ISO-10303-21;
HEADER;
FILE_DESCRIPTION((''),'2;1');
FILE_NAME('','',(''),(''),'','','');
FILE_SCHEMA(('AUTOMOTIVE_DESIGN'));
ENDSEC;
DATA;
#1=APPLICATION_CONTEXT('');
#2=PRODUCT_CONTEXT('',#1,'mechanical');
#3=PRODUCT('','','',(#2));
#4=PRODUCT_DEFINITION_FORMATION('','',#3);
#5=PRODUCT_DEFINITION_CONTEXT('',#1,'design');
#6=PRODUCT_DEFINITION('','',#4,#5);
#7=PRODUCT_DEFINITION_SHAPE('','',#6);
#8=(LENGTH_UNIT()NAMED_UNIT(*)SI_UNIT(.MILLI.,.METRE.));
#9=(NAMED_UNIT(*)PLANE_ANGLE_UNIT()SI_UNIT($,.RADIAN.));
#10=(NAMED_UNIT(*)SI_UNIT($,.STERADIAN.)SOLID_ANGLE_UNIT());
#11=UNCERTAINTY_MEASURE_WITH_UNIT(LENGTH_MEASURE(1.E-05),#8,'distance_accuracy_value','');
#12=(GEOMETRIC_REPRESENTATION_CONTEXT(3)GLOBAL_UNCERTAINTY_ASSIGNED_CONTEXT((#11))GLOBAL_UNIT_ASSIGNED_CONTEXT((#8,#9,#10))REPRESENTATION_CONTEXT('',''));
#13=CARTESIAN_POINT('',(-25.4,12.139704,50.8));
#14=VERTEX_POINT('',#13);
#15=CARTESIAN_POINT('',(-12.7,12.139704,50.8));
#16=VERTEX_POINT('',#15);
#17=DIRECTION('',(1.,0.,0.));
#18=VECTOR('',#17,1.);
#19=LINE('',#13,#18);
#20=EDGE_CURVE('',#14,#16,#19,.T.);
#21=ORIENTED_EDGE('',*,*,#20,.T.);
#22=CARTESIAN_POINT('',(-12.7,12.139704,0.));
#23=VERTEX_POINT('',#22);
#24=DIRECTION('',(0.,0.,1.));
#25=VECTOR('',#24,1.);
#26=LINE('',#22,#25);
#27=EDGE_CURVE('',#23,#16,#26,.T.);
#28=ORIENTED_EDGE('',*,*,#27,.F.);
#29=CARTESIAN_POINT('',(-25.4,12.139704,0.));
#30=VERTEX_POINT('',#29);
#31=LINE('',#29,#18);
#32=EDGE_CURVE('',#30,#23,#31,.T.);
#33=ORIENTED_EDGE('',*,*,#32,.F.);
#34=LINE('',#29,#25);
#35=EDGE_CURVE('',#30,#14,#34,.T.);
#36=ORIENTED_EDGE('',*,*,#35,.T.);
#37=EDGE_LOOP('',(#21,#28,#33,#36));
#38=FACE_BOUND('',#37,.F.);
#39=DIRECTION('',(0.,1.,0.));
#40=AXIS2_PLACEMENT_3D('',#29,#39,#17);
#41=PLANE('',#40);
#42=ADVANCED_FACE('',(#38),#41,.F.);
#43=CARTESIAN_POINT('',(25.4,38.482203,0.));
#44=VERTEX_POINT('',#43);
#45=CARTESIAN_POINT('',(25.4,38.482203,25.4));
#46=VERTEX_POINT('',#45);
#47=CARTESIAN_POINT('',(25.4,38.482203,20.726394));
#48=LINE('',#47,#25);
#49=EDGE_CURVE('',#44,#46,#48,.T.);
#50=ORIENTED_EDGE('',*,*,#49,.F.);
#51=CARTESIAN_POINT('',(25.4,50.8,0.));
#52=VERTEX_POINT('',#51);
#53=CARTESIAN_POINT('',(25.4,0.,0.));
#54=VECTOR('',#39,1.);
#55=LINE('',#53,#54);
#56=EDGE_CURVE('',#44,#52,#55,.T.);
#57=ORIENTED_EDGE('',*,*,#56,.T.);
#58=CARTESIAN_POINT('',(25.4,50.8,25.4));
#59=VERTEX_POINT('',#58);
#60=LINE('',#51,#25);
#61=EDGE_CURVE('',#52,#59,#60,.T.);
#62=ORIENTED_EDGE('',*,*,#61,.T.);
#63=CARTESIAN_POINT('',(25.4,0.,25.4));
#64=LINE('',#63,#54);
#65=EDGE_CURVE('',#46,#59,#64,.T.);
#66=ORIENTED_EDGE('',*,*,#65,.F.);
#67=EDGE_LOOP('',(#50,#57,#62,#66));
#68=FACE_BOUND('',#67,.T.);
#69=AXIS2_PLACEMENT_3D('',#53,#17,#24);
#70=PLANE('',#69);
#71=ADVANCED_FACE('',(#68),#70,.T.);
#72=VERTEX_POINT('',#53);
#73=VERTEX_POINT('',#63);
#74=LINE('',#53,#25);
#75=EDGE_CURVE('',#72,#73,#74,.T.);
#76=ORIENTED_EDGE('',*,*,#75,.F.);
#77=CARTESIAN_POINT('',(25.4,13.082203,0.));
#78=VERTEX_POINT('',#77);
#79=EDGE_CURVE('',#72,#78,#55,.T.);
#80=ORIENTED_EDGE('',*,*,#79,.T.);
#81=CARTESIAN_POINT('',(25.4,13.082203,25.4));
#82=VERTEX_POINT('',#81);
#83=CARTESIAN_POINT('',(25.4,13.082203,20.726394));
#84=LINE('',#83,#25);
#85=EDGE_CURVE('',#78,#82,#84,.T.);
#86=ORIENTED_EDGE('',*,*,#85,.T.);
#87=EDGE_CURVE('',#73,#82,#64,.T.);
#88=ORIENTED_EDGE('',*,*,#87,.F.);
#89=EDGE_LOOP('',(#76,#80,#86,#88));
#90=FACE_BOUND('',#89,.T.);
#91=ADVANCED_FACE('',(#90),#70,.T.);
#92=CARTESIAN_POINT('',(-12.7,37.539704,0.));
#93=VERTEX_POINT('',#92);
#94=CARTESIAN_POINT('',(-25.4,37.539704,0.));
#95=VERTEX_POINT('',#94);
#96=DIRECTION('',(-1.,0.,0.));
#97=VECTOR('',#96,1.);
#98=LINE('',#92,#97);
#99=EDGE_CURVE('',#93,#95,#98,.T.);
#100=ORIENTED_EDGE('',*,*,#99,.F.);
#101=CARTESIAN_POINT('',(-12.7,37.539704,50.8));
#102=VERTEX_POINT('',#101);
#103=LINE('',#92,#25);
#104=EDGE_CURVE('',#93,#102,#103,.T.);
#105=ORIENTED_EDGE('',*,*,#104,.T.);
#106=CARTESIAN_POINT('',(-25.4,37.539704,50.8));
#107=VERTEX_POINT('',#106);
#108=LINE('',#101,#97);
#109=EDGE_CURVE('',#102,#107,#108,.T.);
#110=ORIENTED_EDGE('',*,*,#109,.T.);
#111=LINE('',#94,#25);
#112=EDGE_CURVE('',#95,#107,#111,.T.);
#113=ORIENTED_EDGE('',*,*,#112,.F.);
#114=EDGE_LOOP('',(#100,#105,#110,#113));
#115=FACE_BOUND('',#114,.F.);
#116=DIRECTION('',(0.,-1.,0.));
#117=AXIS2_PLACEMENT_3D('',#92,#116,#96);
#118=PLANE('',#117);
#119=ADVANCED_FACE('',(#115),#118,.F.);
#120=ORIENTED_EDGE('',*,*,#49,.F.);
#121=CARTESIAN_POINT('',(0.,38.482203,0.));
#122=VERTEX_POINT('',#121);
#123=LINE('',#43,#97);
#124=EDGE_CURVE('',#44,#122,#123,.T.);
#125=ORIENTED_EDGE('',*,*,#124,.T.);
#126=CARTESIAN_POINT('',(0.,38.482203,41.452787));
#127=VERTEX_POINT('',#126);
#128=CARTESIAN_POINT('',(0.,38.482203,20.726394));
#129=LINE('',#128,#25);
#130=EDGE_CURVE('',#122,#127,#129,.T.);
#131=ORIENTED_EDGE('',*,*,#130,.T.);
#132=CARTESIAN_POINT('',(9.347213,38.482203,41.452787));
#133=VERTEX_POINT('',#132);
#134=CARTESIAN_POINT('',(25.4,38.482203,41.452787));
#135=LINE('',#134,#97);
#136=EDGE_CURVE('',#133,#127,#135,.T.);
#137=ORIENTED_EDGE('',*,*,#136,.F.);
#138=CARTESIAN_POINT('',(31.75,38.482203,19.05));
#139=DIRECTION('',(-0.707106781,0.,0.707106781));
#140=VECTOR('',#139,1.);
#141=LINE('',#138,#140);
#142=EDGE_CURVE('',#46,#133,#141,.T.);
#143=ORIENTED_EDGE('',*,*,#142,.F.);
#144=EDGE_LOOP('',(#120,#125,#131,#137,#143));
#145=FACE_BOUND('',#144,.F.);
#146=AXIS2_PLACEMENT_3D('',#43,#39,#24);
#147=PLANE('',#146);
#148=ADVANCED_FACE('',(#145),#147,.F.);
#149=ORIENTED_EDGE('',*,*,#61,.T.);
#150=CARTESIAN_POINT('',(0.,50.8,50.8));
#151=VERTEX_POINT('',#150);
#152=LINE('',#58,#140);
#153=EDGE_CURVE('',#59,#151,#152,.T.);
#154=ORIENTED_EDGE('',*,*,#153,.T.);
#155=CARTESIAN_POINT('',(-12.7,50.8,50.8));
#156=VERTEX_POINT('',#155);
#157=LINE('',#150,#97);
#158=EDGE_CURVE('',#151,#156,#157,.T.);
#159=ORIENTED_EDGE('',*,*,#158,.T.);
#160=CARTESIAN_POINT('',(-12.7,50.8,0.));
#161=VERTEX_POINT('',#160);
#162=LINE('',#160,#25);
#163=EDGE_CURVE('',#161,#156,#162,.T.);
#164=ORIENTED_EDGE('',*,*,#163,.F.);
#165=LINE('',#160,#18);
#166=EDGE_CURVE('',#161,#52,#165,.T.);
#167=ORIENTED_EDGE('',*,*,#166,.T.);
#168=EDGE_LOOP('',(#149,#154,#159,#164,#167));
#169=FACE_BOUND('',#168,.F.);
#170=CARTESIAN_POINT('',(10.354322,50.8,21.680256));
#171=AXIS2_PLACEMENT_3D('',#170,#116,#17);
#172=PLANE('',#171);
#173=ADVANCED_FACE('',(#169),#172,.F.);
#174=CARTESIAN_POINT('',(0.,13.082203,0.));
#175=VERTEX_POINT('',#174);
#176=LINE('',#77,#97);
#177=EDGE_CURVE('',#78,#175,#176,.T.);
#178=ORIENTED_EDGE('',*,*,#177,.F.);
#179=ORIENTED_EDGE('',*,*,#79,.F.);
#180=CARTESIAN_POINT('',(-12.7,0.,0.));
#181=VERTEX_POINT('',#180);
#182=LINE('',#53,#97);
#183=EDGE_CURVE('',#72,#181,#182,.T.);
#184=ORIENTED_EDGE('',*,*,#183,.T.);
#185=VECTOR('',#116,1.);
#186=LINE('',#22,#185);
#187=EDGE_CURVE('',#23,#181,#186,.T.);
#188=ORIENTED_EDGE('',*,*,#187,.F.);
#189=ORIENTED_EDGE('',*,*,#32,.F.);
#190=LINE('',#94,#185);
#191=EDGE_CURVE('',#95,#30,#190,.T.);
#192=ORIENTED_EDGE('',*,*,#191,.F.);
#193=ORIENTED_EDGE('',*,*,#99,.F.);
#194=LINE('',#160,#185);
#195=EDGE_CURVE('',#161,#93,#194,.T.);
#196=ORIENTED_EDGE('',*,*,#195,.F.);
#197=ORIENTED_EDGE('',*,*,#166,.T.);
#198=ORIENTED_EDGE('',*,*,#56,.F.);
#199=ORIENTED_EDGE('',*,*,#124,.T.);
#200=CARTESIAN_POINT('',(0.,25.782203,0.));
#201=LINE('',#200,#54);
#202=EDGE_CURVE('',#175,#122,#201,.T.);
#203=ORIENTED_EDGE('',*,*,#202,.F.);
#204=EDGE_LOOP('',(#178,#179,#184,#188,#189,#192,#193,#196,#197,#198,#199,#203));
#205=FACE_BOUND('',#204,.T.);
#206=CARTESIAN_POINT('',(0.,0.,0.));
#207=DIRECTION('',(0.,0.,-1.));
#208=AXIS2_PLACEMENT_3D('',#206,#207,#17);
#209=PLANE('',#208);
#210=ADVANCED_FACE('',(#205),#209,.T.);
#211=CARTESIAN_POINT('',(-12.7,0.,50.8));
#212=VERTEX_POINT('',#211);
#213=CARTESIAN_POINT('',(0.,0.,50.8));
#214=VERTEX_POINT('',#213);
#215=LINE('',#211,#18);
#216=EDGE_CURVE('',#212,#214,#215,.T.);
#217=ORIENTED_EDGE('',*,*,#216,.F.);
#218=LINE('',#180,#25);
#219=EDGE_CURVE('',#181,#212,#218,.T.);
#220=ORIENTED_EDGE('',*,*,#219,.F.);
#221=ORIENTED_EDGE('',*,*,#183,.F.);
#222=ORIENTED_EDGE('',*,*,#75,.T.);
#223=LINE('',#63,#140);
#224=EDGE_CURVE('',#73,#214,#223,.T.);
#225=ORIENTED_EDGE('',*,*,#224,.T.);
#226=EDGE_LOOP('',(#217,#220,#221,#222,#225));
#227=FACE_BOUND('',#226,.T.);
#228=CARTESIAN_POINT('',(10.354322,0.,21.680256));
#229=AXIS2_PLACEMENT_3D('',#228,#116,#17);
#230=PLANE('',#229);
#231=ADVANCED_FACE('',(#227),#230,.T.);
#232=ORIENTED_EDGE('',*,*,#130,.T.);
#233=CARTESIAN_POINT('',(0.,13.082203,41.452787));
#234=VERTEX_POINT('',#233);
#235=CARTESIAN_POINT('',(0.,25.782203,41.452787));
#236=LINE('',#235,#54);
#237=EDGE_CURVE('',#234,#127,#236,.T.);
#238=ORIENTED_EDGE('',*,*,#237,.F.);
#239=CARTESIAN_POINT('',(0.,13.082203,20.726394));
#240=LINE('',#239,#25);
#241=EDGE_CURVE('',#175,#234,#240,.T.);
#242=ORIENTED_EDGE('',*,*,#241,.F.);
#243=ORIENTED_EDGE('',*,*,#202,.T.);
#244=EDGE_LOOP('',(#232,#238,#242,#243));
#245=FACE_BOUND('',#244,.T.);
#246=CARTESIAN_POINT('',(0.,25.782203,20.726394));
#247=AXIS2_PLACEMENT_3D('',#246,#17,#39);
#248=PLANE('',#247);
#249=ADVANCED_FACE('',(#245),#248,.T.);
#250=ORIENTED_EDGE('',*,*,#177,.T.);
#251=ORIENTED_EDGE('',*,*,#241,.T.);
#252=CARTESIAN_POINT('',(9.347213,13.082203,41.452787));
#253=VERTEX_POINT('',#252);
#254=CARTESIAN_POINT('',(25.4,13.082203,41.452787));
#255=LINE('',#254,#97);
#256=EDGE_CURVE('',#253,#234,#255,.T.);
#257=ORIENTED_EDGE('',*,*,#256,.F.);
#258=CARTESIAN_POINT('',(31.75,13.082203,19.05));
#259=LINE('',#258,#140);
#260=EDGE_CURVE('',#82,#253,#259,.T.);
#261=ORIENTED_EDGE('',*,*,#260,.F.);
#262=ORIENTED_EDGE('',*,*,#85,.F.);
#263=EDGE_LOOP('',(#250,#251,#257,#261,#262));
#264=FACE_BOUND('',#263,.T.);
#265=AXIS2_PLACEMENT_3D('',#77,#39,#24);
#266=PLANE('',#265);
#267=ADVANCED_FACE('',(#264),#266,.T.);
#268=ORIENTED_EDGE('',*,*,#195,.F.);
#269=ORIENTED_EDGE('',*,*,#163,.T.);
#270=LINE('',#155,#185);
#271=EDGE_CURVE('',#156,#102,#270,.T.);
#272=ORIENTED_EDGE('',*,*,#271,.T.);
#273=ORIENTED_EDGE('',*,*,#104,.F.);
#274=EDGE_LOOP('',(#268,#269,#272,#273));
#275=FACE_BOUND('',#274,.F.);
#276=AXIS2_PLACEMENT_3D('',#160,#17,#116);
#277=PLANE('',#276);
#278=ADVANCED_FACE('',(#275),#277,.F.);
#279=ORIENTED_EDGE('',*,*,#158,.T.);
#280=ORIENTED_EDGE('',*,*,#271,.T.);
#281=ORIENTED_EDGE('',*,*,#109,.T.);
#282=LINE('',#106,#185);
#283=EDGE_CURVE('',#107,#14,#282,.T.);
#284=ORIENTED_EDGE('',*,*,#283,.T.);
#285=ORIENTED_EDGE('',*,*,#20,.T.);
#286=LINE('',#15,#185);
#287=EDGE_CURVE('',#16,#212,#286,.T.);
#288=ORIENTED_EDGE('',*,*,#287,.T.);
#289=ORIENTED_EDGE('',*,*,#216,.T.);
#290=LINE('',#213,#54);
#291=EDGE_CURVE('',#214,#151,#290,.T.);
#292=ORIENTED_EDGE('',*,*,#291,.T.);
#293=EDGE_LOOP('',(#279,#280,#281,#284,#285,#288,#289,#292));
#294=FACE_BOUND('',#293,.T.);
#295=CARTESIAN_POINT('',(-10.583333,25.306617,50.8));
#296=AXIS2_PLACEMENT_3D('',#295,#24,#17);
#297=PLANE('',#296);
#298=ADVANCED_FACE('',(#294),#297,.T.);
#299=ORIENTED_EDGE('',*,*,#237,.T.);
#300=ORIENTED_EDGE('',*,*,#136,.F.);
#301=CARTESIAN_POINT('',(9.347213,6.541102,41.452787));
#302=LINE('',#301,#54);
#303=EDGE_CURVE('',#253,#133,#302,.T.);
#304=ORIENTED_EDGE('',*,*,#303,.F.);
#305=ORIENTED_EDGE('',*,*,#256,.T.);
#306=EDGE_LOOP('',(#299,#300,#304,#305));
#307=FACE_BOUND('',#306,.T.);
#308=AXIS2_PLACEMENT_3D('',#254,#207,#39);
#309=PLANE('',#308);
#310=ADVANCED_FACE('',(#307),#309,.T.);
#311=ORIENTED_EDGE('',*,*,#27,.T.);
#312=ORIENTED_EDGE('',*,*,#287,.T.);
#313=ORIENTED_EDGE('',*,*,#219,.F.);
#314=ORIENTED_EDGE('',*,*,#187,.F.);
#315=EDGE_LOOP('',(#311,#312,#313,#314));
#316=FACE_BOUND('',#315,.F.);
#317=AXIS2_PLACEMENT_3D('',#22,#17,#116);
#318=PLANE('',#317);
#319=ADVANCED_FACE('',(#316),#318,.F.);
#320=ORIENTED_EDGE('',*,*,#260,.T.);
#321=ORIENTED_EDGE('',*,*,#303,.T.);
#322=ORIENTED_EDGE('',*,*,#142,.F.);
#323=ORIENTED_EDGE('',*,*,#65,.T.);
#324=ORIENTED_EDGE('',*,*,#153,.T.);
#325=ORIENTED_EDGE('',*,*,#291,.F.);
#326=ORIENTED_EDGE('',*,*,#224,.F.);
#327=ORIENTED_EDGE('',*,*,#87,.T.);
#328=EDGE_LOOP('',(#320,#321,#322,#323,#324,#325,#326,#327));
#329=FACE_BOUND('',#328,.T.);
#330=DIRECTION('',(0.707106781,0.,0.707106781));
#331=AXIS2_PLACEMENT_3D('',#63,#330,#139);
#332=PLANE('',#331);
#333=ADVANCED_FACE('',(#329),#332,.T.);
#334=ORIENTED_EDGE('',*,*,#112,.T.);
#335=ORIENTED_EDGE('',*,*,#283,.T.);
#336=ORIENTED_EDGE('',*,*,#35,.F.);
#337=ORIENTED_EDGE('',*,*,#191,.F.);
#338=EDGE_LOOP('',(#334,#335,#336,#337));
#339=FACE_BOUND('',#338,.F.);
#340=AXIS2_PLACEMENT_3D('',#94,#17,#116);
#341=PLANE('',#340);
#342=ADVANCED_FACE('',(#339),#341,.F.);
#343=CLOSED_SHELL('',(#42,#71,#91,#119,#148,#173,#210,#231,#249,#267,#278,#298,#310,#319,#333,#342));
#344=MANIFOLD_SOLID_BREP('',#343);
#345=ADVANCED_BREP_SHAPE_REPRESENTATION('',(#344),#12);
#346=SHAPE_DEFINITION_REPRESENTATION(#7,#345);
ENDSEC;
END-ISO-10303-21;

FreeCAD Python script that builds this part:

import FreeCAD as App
import Part
import Sketcher
Q = App.Units.Quantity

doc = App.newDocument("Part")
body = doc.addObject("PartDesign::Body", "Body")

sketch1 = doc.addObject("Sketcher::SketchObject", "Sketch")
body.addObject(sketch1)
sketch1.AttachmentSupport = (doc.XY_Plane, [""])
sketch1.MapMode = "FlatFace"
sketch1.addGeometry([
    Part.LineSegment(App.Vector(-12.7, 0, 0), App.Vector(0, 0, 0)),
    Part.LineSegment(App.Vector(0, 0, 0), App.Vector(0, 50.8, 0)),
    Part.LineSegment(App.Vector(0, 50.8, 0), App.Vector(-12.7, 50.8, 0)),
    Part.LineSegment(App.Vector(-12.7, 50.8, 0), App.Vector(-12.7, 37.539704, 0)),
    Part.LineSegment(App.Vector(-12.7, 37.539704, 0), App.Vector(-25.4, 37.539704, 0)),
    Part.LineSegment(App.Vector(-25.4, 37.539704, 0), App.Vector(-25.4, 12.139704, 0)),
    Part.LineSegment(App.Vector(-25.4, 12.139704, 0), App.Vector(-12.7, 12.139704, 0)),
    Part.LineSegment(App.Vector(-12.7, 12.139704, 0), App.Vector(-12.7, 0, 0)),
], False)
sketch1.addConstraint([
    Sketcher.Constraint("Coincident", 0, 2, 1, 1),
    Sketcher.Constraint("Coincident", 1, 2, 2, 1),
    Sketcher.Constraint("Coincident", 2, 2, 3, 1),
    Sketcher.Constraint("Coincident", 3, 2, 4, 1),
    Sketcher.Constraint("Coincident", 4, 2, 5, 1),
    Sketcher.Constraint("Coincident", 5, 2, 6, 1),
    Sketcher.Constraint("Coincident", 6, 2, 7, 1),
    Sketcher.Constraint("Coincident", 7, 2, 0, 1),
    Sketcher.Constraint("Horizontal", 0),
    Sketcher.Constraint("Vertical", 1),
    Sketcher.Constraint("Horizontal", 2),
    Sketcher.Constraint("Vertical", 3),
    Sketcher.Constraint("Horizontal", 4),
    Sketcher.Constraint("Vertical", 5),
    Sketcher.Constraint("Horizontal", 6),
    Sketcher.Constraint("Vertical", 7),
    Sketcher.Constraint("Coincident", 0, 2, -1, 1),
    Sketcher.Constraint("Vertical", 3, 2, 6, 2),
    Sketcher.Constraint("Equal", 2, 4),
    Sketcher.Constraint("DistanceY", 1, 1, 1, 2, Q("2 in")),
    Sketcher.Constraint("DistanceY", 5, 2, 5, 1, Q("1 in")),
    Sketcher.Constraint("DistanceX", 0, 1, 0, 2, Q("0.5 in")),
    Sketcher.Constraint("DistanceY", 3, 2, 3, 1, 13.260296),
])
pad1 = doc.addObject("PartDesign::Pad", "Pad")
body.addObject(pad1)
pad1.Profile = sketch1
pad1.Length = Q("2 in")

sketch2 = doc.addObject("Sketcher::SketchObject", "Sketch001")
body.addObject(sketch2)
sketch2.AttachmentSupport = (doc.XZ_Plane, [""])
sketch2.MapMode = "FlatFace"
sketch2.addGeometry([
    Part.LineSegment(App.Vector(0, 50.8, 0), App.Vector(0, 0, 0)),
    Part.LineSegment(App.Vector(0, 0, 0), App.Vector(25.4, 0, 0)),
    Part.LineSegment(App.Vector(25.4, 0, 0), App.Vector(25.4, 25.4, 0)),
    Part.LineSegment(App.Vector(25.4, 25.4, 0), App.Vector(0, 50.8, 0)),
], False)
sketch2.addConstraint([
    Sketcher.Constraint("Coincident", 0, 2, 1, 1),
    Sketcher.Constraint("Coincident", 1, 2, 2, 1),
    Sketcher.Constraint("Coincident", 2, 2, 3, 1),
    Sketcher.Constraint("Coincident", 3, 2, 0, 1),
    Sketcher.Constraint("Vertical", 0),
    Sketcher.Constraint("Horizontal", 1),
    Sketcher.Constraint("Vertical", 2),
    Sketcher.Constraint("Coincident", 0, 2, -1, 1),
    Sketcher.Constraint("Equal", 1, 2),
    Sketcher.Constraint("DistanceX", 1, 1, 1, 2, Q("1 in")),
    Sketcher.Constraint("DistanceY", 0, 2, 0, 1, Q("2 in")),
])
pad2 = doc.addObject("PartDesign::Pad", "Pad001")
body.addObject(pad2)
pad2.Profile = sketch2
pad2.Length = Q("2 in")
pad2.Reversed = True

sketch3 = doc.addObject("Sketcher::SketchObject", "Sketch002")
body.addObject(sketch3)
sketch3.AttachmentSupport = (doc.YZ_Plane, [""])
sketch3.MapMode = "FlatFace"
sketch3.AttachmentOffset = App.Placement(App.Vector(0, 0, 1 * 25.4), App.Rotation())
sketch3.addGeometry([
    Part.LineSegment(App.Vector(13.082203, 41.452787, 0), App.Vector(13.082203, 0, 0)),
    Part.LineSegment(App.Vector(13.082203, 0, 0), App.Vector(38.482203, 0, 0)),
    Part.LineSegment(App.Vector(38.482203, 0, 0), App.Vector(38.482203, 41.452787, 0)),
    Part.LineSegment(App.Vector(38.482203, 41.452787, 0), App.Vector(13.082203, 41.452787, 0)),
], False)
sketch3.addConstraint([
    Sketcher.Constraint("Coincident", 0, 2, 1, 1),
    Sketcher.Constraint("Coincident", 1, 2, 2, 1),
    Sketcher.Constraint("Coincident", 2, 2, 3, 1),
    Sketcher.Constraint("Coincident", 3, 2, 0, 1),
    Sketcher.Constraint("Vertical", 0),
    Sketcher.Constraint("Horizontal", 1),
    Sketcher.Constraint("Vertical", 2),
    Sketcher.Constraint("Horizontal", 3),
    Sketcher.Constraint("PointOnObject", 0, 2, -1),
    Sketcher.Constraint("DistanceX", 1, 1, 1, 2, Q("1 in")),
    Sketcher.Constraint("DistanceY", 0, 2, 0, 1, 41.452787),
    Sketcher.Constraint("DistanceX", -1, 1, 0, 2, 13.082203),
])
pocket1 = doc.addObject("PartDesign::Pocket", "Pocket")
body.addObject(pocket1)
pocket1.Profile = sketch3
pocket1.Length = Q("1 in")

doc.recompute()
